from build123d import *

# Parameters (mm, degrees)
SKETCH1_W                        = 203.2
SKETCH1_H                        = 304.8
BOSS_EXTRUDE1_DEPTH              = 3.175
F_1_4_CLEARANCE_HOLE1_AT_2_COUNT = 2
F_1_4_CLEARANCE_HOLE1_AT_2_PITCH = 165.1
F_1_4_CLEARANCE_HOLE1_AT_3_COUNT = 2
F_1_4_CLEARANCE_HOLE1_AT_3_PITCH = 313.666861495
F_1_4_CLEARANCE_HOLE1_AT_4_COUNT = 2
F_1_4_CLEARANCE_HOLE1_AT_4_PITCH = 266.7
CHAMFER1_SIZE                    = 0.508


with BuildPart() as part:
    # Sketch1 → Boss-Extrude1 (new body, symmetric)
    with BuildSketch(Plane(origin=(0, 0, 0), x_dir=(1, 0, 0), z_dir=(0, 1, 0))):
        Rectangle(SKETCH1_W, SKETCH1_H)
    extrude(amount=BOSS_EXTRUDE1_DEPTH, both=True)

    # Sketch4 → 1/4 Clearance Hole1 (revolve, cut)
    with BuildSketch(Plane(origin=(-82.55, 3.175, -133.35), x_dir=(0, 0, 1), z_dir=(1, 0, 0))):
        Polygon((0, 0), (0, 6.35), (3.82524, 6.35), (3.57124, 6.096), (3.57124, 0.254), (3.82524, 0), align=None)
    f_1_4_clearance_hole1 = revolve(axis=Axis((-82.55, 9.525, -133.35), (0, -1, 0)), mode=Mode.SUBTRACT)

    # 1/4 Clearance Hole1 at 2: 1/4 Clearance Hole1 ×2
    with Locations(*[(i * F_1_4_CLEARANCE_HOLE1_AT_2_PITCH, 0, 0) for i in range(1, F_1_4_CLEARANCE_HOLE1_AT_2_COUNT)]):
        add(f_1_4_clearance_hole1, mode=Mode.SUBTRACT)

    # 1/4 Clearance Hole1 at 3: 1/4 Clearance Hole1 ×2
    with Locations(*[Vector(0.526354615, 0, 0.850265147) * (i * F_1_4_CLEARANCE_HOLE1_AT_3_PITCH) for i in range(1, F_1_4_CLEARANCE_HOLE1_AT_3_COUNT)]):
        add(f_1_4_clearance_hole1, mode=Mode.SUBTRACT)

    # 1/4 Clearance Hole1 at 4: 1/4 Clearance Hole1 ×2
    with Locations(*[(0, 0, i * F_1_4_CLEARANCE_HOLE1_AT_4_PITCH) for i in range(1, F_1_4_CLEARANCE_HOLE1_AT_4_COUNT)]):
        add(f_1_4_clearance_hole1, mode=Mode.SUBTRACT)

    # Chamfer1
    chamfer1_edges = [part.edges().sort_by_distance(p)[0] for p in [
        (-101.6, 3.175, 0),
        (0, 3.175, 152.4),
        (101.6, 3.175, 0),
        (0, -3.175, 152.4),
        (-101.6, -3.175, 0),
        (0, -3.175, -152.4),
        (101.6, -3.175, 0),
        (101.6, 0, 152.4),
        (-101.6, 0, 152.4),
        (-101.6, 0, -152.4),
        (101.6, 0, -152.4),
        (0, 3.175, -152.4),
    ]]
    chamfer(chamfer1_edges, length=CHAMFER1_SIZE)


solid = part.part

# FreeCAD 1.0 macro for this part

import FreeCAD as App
import Part
import Sketcher
from FreeCAD import Vector
Q = App.Units.Quantity


def edges_at(feature, points):
    """Names of the edges that pass closest to the given points."""
    edges = feature.Shape.Edges
    near = lambda p: min(range(len(edges)), key=lambda i: edges[i].distToShape(Part.Vertex(*p))[0])
    return sorted({f"Edge{near(p) + 1}" for p in points})

doc = App.newDocument("Part")
body = doc.addObject("PartDesign::Body", "Body")

# Sketch on XZ plane
sketch1 = body.newObject("Sketcher::SketchObject", "Sketch")
sketch1.AttachmentSupport = (doc.getObject("XZ_Plane"), [""])
sketch1.MapMode = "FlatFace"
sketch1.addGeometry(Part.LineSegment(Vector(-101.6, -152.4, 0), Vector(-101.6, 152.4, 0)), False)
sketch1.addGeometry(Part.LineSegment(Vector(-101.6, 152.4, 0), Vector(101.6, 152.4, 0)), False)
sketch1.addGeometry(Part.LineSegment(Vector(101.6, 152.4, 0), Vector(101.6, -152.4, 0)), False)
sketch1.addGeometry(Part.LineSegment(Vector(101.6, -152.4, 0), Vector(-101.6, -152.4, 0)), False)
sketch1.addConstraint(Sketcher.Constraint("Coincident", 0, 2, 1, 1))
sketch1.addConstraint(Sketcher.Constraint("Coincident", 1, 2, 2, 1))
sketch1.addConstraint(Sketcher.Constraint("Coincident", 2, 2, 3, 1))
sketch1.addConstraint(Sketcher.Constraint("Coincident", 3, 2, 0, 1))
sketch1.addConstraint(Sketcher.Constraint("Vertical", 0))
sketch1.addConstraint(Sketcher.Constraint("Horizontal", 1))
sketch1.addConstraint(Sketcher.Constraint("Vertical", 2))
sketch1.addConstraint(Sketcher.Constraint("Horizontal", 3))
sketch1.addConstraint(Sketcher.Constraint("Symmetric", 0, 2, 2, 2, -1, 1))
sketch1.addConstraint(Sketcher.Constraint("DistanceX", 1, 1, 1, 2, Q("8 in")))
sketch1.addConstraint(Sketcher.Constraint("DistanceY", 0, 1, 0, 2, Q("12 in")))
pad1 = body.newObject("PartDesign::Pad", "Pad")
pad1.Profile = sketch1
pad1.Length = Q("0.25 in")
pad1.Midplane = True

# Sketch on YZ plane
sketch2 = body.newObject("Sketcher::SketchObject", "Sketch001")
sketch2.AttachmentSupport = (doc.getObject("YZ_Plane"), [""])
sketch2.MapMode = "FlatFace"
sketch2.AttachmentOffset = App.Placement(Vector(0, 0, -3.25 * 25.4), App.Rotation())
sketch2.addGeometry(Part.LineSegment(Vector(-3.175, -133.35, 0), Vector(3.175, -133.35, 0)), False)
sketch2.addGeometry(Part.LineSegment(Vector(3.175, -133.35, 0), Vector(3.175, -129.52476, 0)), False)
sketch2.addGeometry(Part.LineSegment(Vector(3.175, -129.52476, 0), Vector(2.921, -129.77876, 0)), False)
sketch2.addGeometry(Part.LineSegment(Vector(2.921, -129.77876, 0), Vector(-2.921, -129.77876, 0)), False)
sketch2.addGeometry(Part.LineSegment(Vector(-2.921, -129.77876, 0), Vector(-3.175, -129.52476, 0)), False)
sketch2.addGeometry(Part.LineSegment(Vector(-3.175, -129.52476, 0), Vector(-3.175, -133.35, 0)), False)
sketch2.addGeometry(Part.LineSegment(Vector(3.175, -133.35, 0), Vector(-3.175, -133.35, 0)), True)  # axis
sketch2.addConstraint(Sketcher.Constraint("Coincident", 0, 2, 1, 1))
sketch2.addConstraint(Sketcher.Constraint("Coincident", 1, 2, 2, 1))
sketch2.addConstraint(Sketcher.Constraint("Coincident", 2, 2, 3, 1))
sketch2.addConstraint(Sketcher.Constraint("Coincident", 3, 2, 4, 1))
sketch2.addConstraint(Sketcher.Constraint("Coincident", 4, 2, 5, 1))
sketch2.addConstraint(Sketcher.Constraint("Coincident", 5, 2, 0, 1))
sketch2.addConstraint(Sketcher.Constraint("Horizontal", 0))
sketch2.addConstraint(Sketcher.Constraint("Vertical", 1))
sketch2.addConstraint(Sketcher.Constraint("Horizontal", 3))
sketch2.addConstraint(Sketcher.Constraint("Vertical", 5))
sketch2.addConstraint(Sketcher.Constraint("Horizontal", 6))
sketch2.addConstraint(Sketcher.Constraint("Coincident", 6, 1, 0, 2))
sketch2.addConstraint(Sketcher.Constraint("Symmetric", 1, 2, 4, 2, -2))
sketch2.addConstraint(Sketcher.Constraint("Perpendicular", 2, 4))
sketch2.addConstraint(Sketcher.Constraint("Vertical", 4, 2, 6, 2))
sketch2.addConstraint(Sketcher.Constraint("Equal", 2, 4))
sketch2.addConstraint(Sketcher.Constraint("DistanceX", 0, 1, 0, 2, Q("0.25 in")))
sketch2.addConstraint(Sketcher.Constraint("DistanceX", 3, 2, 3, 1, Q("0.23 in")))
sketch2.addConstraint(Sketcher.Constraint("DistanceY", 0, 2, -1, 1, Q("5.25 in")))
sketch2.addConstraint(Sketcher.Constraint("DistanceY", 1, 1, 1, 2, Q("0.1506 in")))
groove = body.newObject("PartDesign::Groove", "Groove")
groove.Profile = sketch2
groove.ReferenceAxis = (sketch2, ["Axis0"])
groove.Angle = 360
doc.recompute()

linearpattern = body.newObject("PartDesign::LinearPattern", "LinearPattern")
linearpattern.Originals = [groove]
linearpattern.Direction = (doc.getObject("X_Axis"), [""])
linearpattern.Mode = "offset"
linearpattern.Offset = Q("6.5 in")
linearpattern.Occurrences = 2
body.Tip = linearpattern
doc.recompute()

datumline = body.newObject("PartDesign::Line", "DatumLine")
datumline.Placement = App.Placement(Vector(0, 0, 0), App.Rotation(Vector(0, 0, 1), Vector(0.526354615, 0, 0.850265147)))
linearpattern2 = body.newObject("PartDesign::LinearPattern", "LinearPattern001")
linearpattern2.Originals = [groove]
linearpattern2.Direction = (datumline, [""])
linearpattern2.Mode = "offset"
linearpattern2.Offset = 313.666862
linearpattern2.Occurrences = 2
body.Tip = linearpattern2
doc.recompute()

linearpattern3 = body.newObject("PartDesign::LinearPattern", "LinearPattern002")
linearpattern3.Originals = [groove]
linearpattern3.Direction = (doc.getObject("Z_Axis"), [""])
linearpattern3.Mode = "offset"
linearpattern3.Offset = Q("10.5 in")
linearpattern3.Occurrences = 2
body.Tip = linearpattern3
doc.recompute()

chamfer = body.newObject("PartDesign::Chamfer", "Chamfer")
chamfer.Base = (linearpattern3, edges_at(linearpattern3, [
    (-101.6, 3.175, 0),
    (0, 3.175, 152.4),
    (101.6, 3.175, 0),
    (0, -3.175, 152.4),
    (-101.6, -3.175, 0),
    (0, -3.175, -152.4),
    (101.6, -3.175, 0),
    (101.6, 0, 152.4),
    (-101.6, 0, 152.4),
    (-101.6, 0, -152.4),
    (101.6, 0, -152.4),
    (0, 3.175, -152.4),
]))
chamfer.Size = Q("0.02 in")

doc.recompute()
